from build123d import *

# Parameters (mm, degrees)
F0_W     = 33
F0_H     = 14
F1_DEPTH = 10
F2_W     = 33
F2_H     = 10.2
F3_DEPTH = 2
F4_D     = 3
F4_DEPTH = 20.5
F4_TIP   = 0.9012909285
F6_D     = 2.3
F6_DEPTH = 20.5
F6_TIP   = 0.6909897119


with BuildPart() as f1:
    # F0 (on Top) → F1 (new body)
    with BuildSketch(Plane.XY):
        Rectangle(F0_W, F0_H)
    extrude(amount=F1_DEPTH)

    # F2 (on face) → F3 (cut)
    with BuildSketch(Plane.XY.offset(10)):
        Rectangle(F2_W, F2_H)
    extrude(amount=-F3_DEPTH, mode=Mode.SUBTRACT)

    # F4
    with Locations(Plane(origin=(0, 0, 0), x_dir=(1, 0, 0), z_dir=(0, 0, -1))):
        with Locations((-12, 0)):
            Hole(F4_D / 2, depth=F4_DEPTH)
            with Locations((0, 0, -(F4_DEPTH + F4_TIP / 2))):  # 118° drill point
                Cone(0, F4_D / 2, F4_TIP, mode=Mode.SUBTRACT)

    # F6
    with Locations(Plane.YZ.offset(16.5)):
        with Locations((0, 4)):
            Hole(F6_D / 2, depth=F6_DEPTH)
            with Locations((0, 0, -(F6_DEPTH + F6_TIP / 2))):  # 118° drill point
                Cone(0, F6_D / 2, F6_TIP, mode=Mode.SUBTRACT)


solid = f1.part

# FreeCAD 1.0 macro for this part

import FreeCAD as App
import Part
import Sketcher

V = App.Vector
Q = App.Units.Quantity

doc = App.newDocument("Part")
params = doc.addObject("Spreadsheet::Sheet", "Params")
for row, (alias, value) in enumerate([
    ("sketch1_width", "33 mm"),
    ("sketch1_height", "14 mm"),
    ("pad1_length", "10 mm"),
    ("sketch2_width", "33 mm"),
    ("sketch2_height", "10.2 mm"),
    ("pocket1_length", "2 mm"),
    ("sketch3_diameter", "3 mm"),
    ("hole_diameter", "3 mm"),
    ("hole_depth", "20.5 mm"),
    ("sketch4_diameter", "2.3 mm"),
    ("hole2_diameter", "2.3 mm"),
    ("hole2_depth", "20.5 mm"),
], start=1):
    params.set(f"A{row}", alias)
    params.set(f"B{row}", "=" + value)
    params.setAlias(f"B{row}", alias)

body = doc.addObject("PartDesign::Body", "Body")

# Sketch on XY plane
sketch1 = doc.addObject("Sketcher::SketchObject", "Sketch")
body.addObject(sketch1)
sketch1.AttachmentSupport = (doc.XY_Plane, [""])
sketch1.MapMode = "FlatFace"
sketch1.addGeometry([
    Part.LineSegment(V(-16.5, 7, 0), V(-16.5, -7, 0)),
    Part.LineSegment(V(-16.5, -7, 0), V(16.5, -7, 0)),
    Part.LineSegment(V(16.5, -7, 0), V(16.5, 7, 0)),
    Part.LineSegment(V(16.5, 7, 0), V(-16.5, 7, 0)),
], False)
sketch1.addConstraint([
    Sketcher.Constraint("Coincident", 0, 2, 1, 1),
    Sketcher.Constraint("Coincident", 1, 2, 2, 1),
    Sketcher.Constraint("Coincident", 2, 2, 3, 1),
    Sketcher.Constraint("Coincident", 3, 2, 0, 1),
    Sketcher.Constraint("Vertical", 0),
    Sketcher.Constraint("Horizontal", 1),
    Sketcher.Constraint("Vertical", 2),
    Sketcher.Constraint("Horizontal", 3),
    Sketcher.Constraint("Symmetric", 0, 2, 2, 2, -1, 1),
    Sketcher.Constraint("DistanceX", 1, 1, 1, 2, Q("33 mm")),
    Sketcher.Constraint("DistanceY", 0, 2, 0, 1, Q("14 mm")),
])
sketch1.setExpression("Constraints[9]", "Params.sketch1_width")
sketch1.setExpression("Constraints[10]", "Params.sketch1_height")
pad1 = doc.addObject("PartDesign::Pad", "Pad")
body.addObject(pad1)
pad1.Profile = sketch1
pad1.setExpression("Length", "Params.pad1_length")

# Sketch on XY plane
sketch2 = doc.addObject("Sketcher::SketchObject", "Sketch001")
body.addObject(sketch2)
sketch2.AttachmentSupport = (doc.XY_Plane, [""])
sketch2.MapMode = "FlatFace"
sketch2.AttachmentOffset = App.Placement(V(0, 0, 10), App.Rotation())
sketch2.addGeometry([
    Part.LineSegment(V(-16.5, 5.1, 0), V(-16.5, -5.1, 0)),
    Part.LineSegment(V(-16.5, -5.1, 0), V(16.5, -5.1, 0)),
    Part.LineSegment(V(16.5, -5.1, 0), V(16.5, 5.1, 0)),
    Part.LineSegment(V(16.5, 5.1, 0), V(-16.5, 5.1, 0)),
], False)
sketch2.addConstraint([
    Sketcher.Constraint("Coincident", 0, 2, 1, 1),
    Sketcher.Constraint("Coincident", 1, 2, 2, 1),
    Sketcher.Constraint("Coincident", 2, 2, 3, 1),
    Sketcher.Constraint("Coincident", 3, 2, 0, 1),
    Sketcher.Constraint("Vertical", 0),
    Sketcher.Constraint("Horizontal", 1),
    Sketcher.Constraint("Vertical", 2),
    Sketcher.Constraint("Horizontal", 3),
    Sketcher.Constraint("Symmetric", 0, 2, 2, 2, -1, 1),
    Sketcher.Constraint("DistanceX", 1, 1, 1, 2, Q("33 mm")),
    Sketcher.Constraint("DistanceY", 0, 2, 0, 1, Q("10.2 mm")),
])
sketch2.setExpression("Constraints[9]", "Params.sketch2_width")
sketch2.setExpression("Constraints[10]", "Params.sketch2_height")
pocket1 = doc.addObject("PartDesign::Pocket", "Pocket")
body.addObject(pocket1)
pocket1.Profile = sketch2
pocket1.setExpression("Length", "Params.pocket1_length")

# Sketch on XY plane
sketch3 = doc.addObject("Sketcher::SketchObject", "Sketch002")
body.addObject(sketch3)
sketch3.AttachmentSupport = (doc.XY_Plane, [""])
sketch3.MapMode = "FlatFace"
sketch3.addGeometry(Part.Circle(V(-12, 0, 0), V(0, 0, 1), 1.5), False)
sketch3.addConstraint([
    Sketcher.Constraint("PointOnObject", 0, 3, -1),
    Sketcher.Constraint("Diameter", 0, Q("3 mm")),
    Sketcher.Constraint("DistanceX", 0, 3, -1, 1, Q("12 mm")),
])
sketch3.setExpression("Constraints[1]", "Params.sketch3_diameter")
doc.recompute()
hole = doc.addObject("PartDesign::Hole", "Hole")
body.addObject(hole)
hole.Profile = sketch3
hole.ThreadType = "None"
hole.setExpression("Diameter", "Params.hole_diameter")
hole.DepthType = "Dimension"
hole.setExpression("Depth", "Params.hole_depth")
hole.DrillPoint = "Angled"
hole.DrillPointAngle = 118
hole.Reversed = True

# Sketch on YZ plane
sketch4 = doc.addObject("Sketcher::SketchObject", "Sketch003")
body.addObject(sketch4)
sketch4.AttachmentSupport = (doc.YZ_Plane, [""])
sketch4.MapMode = "FlatFace"
sketch4.AttachmentOffset = App.Placement(V(0, 0, 16.5), App.Rotation())
sketch4.addGeometry(Part.Circle(V(0, 4, 0), V(0, 0, 1), 1.15), False)
sketch4.addConstraint([
    Sketcher.Constraint("PointOnObject", 0, 3, -2),
    Sketcher.Constraint("Diameter", 0, Q("2.3 mm")),
    Sketcher.Constraint("DistanceY", -1, 1, 0, 3, Q("4 mm")),
])
sketch4.setExpression("Constraints[1]", "Params.sketch4_diameter")
doc.recompute()
hole2 = doc.addObject("PartDesign::Hole", "Hole001")
body.addObject(hole2)
hole2.Profile = sketch4
hole2.ThreadType = "None"
hole2.setExpression("Diameter", "Params.hole2_diameter")
hole2.DepthType = "Dimension"
hole2.setExpression("Depth", "Params.hole2_depth")
hole2.DrillPoint = "Angled"
hole2.DrillPointAngle = 118

doc.recompute()
